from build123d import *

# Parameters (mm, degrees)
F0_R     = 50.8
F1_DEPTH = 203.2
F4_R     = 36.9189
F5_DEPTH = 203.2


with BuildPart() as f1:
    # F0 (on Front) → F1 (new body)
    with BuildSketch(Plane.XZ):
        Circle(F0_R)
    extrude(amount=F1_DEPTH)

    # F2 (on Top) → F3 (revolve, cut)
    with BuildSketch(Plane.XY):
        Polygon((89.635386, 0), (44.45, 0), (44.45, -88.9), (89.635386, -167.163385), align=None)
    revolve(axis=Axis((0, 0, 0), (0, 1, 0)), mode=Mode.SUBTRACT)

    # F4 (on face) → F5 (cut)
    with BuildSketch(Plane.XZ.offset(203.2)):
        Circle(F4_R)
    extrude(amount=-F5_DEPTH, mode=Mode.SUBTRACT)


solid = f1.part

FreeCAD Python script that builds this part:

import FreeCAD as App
import Part
import Sketcher
Q = App.Units.Quantity


def add_polygon(sketch, points):
    """Adds a closed chain of lines whose ends are joined by coincident constraints."""
    first, n = sketch.GeometryCount, len(points)
    for a, b in zip(points, points[1:] + points[:1]):
        sketch.addGeometry(Part.LineSegment(App.Vector(*a, 0), App.Vector(*b, 0)), False)
    for i in range(n):
        sketch.addConstraint(Sketcher.Constraint("Coincident", first + i, 2, first + (i + 1) % n, 1))

doc = App.newDocument("Part")
body = doc.addObject("PartDesign::Body", "Body")

sketch1 = body.newObject("Sketcher::SketchObject", "Sketch")
sketch1.AttachmentSupport = (doc.getObject("XZ_Plane"), [""])
sketch1.MapMode = "FlatFace"
sketch1.addGeometry(Part.Circle(App.Vector(0, 0, 0), App.Vector(0, 0, 1), 50.8), False)
sketch1.addConstraint([
    Sketcher.Constraint("Coincident", 0, 3, -1, 1),
    Sketcher.Constraint("Diameter", 0, Q("4 in")),
])
pad1 = body.newObject("PartDesign::Pad", "Pad")
pad1.Profile = sketch1
pad1.Length = Q("8 in")

sketch2 = body.newObject("Sketcher::SketchObject", "Sketch001")
sketch2.AttachmentSupport = (doc.getObject("XY_Plane"), [""])
sketch2.MapMode = "FlatFace"
add_polygon(sketch2, [(89.635386, 0), (44.45, 0), (44.45, -88.9), (89.635386, -167.163385)])
sketch2.addConstraint([
    Sketcher.Constraint("Horizontal", 0),
    Sketcher.Constraint("Vertical", 1),
    Sketcher.Constraint("Vertical", 3),
    Sketcher.Constraint("PointOnObject", 0, 2, -1),
    Sketcher.Constraint("DistanceY", 1, 2, 1, 1, Q("3.5 in")),
    Sketcher.Constraint("Angle", 2, Q("-60 deg")),
    Sketcher.Constraint("DistanceX", -1, 1, 0, 2, Q("1.75 in")),
    Sketcher.Constraint("DistanceX", 0, 2, 0, 1, 45.185386),
])
groove = body.newObject("PartDesign::Groove", "Groove")
groove.Profile = sketch2
groove.ReferenceAxis = (sketch2, ["V_Axis"])
groove.Angle = 360

sketch3 = body.newObject("Sketcher::SketchObject", "Sketch002")
sketch3.AttachmentSupport = (doc.getObject("XZ_Plane"), [""])
sketch3.MapMode = "FlatFace"
sketch3.AttachmentOffset = App.Placement(App.Vector(0, 0, 8 * 25.4), App.Rotation())
sketch3.addGeometry(Part.Circle(App.Vector(0, 0, 0), App.Vector(0, 0, 1), 36.9189), False)
sketch3.addConstraint([
    Sketcher.Constraint("Coincident", 0, 3, -1, 1),
    Sketcher.Constraint("Diameter", 0, Q("2.907 in")),
])
pocket1 = body.newObject("PartDesign::Pocket", "Pocket")
pocket1.Profile = sketch3
pocket1.Length = Q("8 in")

doc.recompute()
